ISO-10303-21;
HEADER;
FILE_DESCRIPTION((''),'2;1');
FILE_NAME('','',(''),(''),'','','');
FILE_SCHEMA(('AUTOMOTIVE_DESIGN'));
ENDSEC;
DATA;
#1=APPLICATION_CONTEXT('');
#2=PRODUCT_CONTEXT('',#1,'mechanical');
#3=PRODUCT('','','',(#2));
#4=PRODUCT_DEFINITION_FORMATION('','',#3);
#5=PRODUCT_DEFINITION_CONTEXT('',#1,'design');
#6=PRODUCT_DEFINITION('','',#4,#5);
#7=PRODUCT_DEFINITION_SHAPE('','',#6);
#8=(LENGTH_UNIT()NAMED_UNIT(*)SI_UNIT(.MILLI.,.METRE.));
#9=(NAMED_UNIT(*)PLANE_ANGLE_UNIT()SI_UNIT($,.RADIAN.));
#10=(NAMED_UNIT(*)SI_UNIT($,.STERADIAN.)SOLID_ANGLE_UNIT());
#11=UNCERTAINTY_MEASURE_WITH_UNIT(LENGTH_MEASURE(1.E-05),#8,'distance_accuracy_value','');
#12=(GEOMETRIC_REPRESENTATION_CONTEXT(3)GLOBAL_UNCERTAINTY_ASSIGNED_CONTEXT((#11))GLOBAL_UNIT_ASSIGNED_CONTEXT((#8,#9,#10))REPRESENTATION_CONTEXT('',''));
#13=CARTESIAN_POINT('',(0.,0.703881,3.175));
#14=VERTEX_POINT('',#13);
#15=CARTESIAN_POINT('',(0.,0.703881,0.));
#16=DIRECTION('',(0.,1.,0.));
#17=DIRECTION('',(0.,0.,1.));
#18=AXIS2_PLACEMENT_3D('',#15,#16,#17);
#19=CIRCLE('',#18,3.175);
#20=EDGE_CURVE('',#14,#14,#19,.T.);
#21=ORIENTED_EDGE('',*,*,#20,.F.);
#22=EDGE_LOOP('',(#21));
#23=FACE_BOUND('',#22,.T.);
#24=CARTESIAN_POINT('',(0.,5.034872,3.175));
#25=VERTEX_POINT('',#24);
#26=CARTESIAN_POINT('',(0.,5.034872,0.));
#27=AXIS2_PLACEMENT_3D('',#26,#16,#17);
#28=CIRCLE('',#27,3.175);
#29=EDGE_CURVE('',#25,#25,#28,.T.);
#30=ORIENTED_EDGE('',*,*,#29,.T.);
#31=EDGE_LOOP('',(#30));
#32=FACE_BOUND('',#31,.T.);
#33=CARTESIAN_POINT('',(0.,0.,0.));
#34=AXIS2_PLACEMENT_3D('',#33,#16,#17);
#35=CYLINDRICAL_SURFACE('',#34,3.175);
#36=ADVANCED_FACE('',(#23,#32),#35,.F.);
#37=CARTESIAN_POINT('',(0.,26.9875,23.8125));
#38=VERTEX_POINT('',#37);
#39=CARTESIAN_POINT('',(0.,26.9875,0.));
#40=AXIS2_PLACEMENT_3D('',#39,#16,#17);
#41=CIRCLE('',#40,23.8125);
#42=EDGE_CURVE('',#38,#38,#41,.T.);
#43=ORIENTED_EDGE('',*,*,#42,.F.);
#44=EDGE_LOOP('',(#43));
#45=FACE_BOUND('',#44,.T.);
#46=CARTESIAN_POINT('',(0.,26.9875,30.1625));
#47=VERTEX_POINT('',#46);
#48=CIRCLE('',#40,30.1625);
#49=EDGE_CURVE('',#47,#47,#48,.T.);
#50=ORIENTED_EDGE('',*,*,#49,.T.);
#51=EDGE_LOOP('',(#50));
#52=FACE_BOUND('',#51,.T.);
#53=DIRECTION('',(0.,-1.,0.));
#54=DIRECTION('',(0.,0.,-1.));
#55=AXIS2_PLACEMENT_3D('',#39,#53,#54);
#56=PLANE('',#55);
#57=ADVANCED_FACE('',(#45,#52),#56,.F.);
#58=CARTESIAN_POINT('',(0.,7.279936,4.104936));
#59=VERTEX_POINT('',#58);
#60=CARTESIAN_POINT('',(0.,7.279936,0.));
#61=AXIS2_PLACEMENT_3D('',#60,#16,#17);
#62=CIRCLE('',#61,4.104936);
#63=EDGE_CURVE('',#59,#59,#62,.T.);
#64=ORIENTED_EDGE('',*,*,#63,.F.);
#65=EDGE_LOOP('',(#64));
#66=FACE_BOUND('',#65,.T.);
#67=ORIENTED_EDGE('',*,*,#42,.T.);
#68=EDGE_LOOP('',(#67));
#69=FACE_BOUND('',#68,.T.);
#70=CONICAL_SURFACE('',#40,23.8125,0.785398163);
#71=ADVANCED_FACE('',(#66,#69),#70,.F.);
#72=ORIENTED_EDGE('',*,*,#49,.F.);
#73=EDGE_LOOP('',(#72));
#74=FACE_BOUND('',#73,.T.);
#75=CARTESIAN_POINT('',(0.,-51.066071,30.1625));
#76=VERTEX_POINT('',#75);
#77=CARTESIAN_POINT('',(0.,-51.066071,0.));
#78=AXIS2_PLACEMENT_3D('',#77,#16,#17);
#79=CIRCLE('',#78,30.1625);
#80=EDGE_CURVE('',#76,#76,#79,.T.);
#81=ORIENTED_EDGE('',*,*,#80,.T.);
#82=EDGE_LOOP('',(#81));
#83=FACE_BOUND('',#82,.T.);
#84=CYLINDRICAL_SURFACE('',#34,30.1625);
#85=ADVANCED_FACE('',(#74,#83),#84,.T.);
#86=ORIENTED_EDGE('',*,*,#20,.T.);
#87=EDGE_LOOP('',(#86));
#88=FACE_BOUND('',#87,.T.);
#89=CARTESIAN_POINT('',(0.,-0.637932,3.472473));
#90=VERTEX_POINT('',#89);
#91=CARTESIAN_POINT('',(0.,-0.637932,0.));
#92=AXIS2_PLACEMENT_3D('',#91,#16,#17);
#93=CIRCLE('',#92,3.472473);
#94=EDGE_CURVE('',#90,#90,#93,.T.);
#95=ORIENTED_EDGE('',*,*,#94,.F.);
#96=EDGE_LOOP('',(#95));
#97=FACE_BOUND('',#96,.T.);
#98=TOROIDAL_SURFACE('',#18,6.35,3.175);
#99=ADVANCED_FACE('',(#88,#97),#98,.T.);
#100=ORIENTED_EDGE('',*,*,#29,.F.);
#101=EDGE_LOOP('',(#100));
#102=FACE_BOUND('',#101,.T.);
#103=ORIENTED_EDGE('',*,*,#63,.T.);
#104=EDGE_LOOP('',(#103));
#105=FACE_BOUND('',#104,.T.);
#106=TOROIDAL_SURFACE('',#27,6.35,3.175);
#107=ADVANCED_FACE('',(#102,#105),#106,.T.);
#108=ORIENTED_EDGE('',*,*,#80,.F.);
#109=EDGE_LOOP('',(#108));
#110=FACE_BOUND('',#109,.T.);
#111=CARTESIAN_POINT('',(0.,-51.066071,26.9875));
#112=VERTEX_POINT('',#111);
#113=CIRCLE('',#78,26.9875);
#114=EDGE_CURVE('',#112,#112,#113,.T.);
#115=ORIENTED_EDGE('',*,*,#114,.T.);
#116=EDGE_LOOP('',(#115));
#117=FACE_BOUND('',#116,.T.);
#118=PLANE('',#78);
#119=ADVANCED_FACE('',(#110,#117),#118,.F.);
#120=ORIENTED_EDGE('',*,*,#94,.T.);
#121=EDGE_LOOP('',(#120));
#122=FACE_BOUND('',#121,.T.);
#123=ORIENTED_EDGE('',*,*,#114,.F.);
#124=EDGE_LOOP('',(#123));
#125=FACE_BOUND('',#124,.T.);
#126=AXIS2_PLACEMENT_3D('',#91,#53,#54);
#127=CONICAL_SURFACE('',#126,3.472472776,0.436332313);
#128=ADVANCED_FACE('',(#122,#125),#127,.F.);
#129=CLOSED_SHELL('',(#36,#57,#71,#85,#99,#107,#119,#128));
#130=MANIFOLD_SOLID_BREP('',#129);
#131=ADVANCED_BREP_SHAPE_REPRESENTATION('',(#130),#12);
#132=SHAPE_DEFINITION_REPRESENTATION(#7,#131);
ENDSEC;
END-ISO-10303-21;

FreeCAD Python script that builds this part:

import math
import FreeCAD as App
import Part
import Sketcher
from FreeCAD import Vector
Q = App.Units.Quantity

doc = App.newDocument("Part")
body = doc.addObject("PartDesign::Body", "Body")

sketch1 = body.newObject("Sketcher::SketchObject", "Sketch")
sketch1.AttachmentSupport = (doc.getObject("XY_Plane"), [""])
sketch1.MapMode = "FlatFace"
sketch1.addGeometry([
    Part.LineSegment(Vector(30.2, 27, 0), Vector(23.8, 27, 0)),
    Part.LineSegment(Vector(23.8, 27, 0), Vector(4.1, 7.3, 0)),
    Part.ArcOfCircle(Part.Circle(Vector(6.3, 5, 0), Vector(0, 0, 1), 3.2), math.radians(135), math.radians(180)),
    Part.LineSegment(Vector(3.2, 5, 0), Vector(3.2, 0.7, 0)),
    Part.ArcOfCircle(Part.Circle(Vector(6.3, 0.7, 0), Vector(0, 0, 1), 3.2), math.radians(180), math.radians(205)),
    Part.LineSegment(Vector(3.5, -0.6, 0), Vector(27, -51.1, 0)),
    Part.LineSegment(Vector(27, -51.1, 0), Vector(30.2, -51.1, 0)),
    Part.LineSegment(Vector(30.2, -51.1, 0), Vector(30.2, 27, 0)),
], False)
sketch1.addConstraint([
    Sketcher.Constraint("Coincident", 0, 2, 1, 1),
    Sketcher.Constraint("Tangent", 1, 2, 2, 1),
    Sketcher.Constraint("Tangent", 2, 2, 3, 1),
    Sketcher.Constraint("Tangent", 3, 2, 4, 1),
    Sketcher.Constraint("Tangent", 4, 2, 5, 1),
    Sketcher.Constraint("Coincident", 5, 2, 6, 1),
    Sketcher.Constraint("Coincident", 6, 2, 7, 1),
    Sketcher.Constraint("Coincident", 7, 2, 0, 1),
    Sketcher.Constraint("Horizontal", 0),
    Sketcher.Constraint("Vertical", 3),
    Sketcher.Constraint("Horizontal", 6),
    Sketcher.Constraint("Vertical", 7),
    Sketcher.Constraint("Equal", 2, 4),
    Sketcher.Constraint("Angle", 1, Q("-135 deg")),
    Sketcher.Constraint("Angle", 5, Q("-65 deg")),
    Sketcher.Constraint("Radius", 2, Q("0.125 in")),
    Sketcher.Constraint("DistanceX", 0, 2, 0, 1, Q("0.25 in")),
    Sketcher.Constraint("DistanceX", 6, 1, 6, 2, Q("0.125 in")),
    Sketcher.Constraint("DistanceX", -1, 1, 2, 3, Q("0.25 in")),
    Sketcher.Constraint("DistanceX", -1, 1, 0, 2, Q("0.9375 in")),
    Sketcher.Constraint("DistanceY", -1, 1, 0, 2, Q("1.0625 in")),
    Sketcher.Constraint("DistanceY", 4, 3, 1, 2, Q("0.2588998 in")),
])
revolution = body.newObject("PartDesign::Revolution", "Revolution")
revolution.Profile = sketch1
revolution.ReferenceAxis = (sketch1, ["V_Axis"])
revolution.Angle = 360

doc.recompute()
